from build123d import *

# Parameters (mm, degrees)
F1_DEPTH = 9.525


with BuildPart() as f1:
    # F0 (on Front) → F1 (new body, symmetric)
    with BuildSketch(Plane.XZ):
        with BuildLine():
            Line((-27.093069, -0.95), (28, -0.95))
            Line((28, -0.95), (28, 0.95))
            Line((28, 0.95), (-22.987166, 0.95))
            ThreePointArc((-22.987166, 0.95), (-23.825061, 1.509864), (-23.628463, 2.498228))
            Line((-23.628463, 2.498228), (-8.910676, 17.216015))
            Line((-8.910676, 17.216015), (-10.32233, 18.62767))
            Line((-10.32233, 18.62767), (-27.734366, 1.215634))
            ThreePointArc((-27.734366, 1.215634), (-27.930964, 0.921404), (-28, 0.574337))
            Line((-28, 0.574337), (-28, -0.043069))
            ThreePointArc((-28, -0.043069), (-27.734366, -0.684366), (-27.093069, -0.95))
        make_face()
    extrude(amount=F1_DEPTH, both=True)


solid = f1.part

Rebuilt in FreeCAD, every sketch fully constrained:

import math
import FreeCAD as App
import Part
import Sketcher

V = App.Vector
Q = App.Units.Quantity

doc = App.newDocument("Part")
params = doc.addObject("Spreadsheet::Sheet", "Params")
for row, (alias, value) in enumerate([
    ("sketch1_height", "1.9 mm"),
    ("pad1_length", "19.05 mm"),
], start=1):
    params.set(f"A{row}", alias)
    params.set(f"B{row}", "=" + value)
    params.setAlias(f"B{row}", alias)

body = doc.addObject("PartDesign::Body", "Body")

# Sketch on XZ plane
sketch1 = body.newObject("Sketcher::SketchObject", "Sketch")
sketch1.AttachmentSupport = (doc.getObject("XZ_Plane"), [""])
sketch1.MapMode = "FlatFace"
sketch1.addGeometry([
    Part.LineSegment(V(-27.093069, -0.95, 0), V(28, -0.95, 0)),  # 0
    Part.LineSegment(V(28, -0.95, 0), V(28, 0.95, 0)),  # 1
    Part.LineSegment(V(28, 0.95, 0), V(-22.987166, 0.95, 0)),  # 2
    Part.ArcOfCircle(Part.Circle(V(-22.987166, 1.856931, 0), V(0, 0, 1), 0.906931), math.radians(135.000011), math.radians(269.999987)),  # 3
    Part.LineSegment(V(-23.628463, 2.498228, 0), V(-8.910676, 17.216015, 0)),  # 4
    Part.LineSegment(V(-8.910676, 17.216015, 0), V(-10.32233, 18.62767, 0)),  # 5
    Part.LineSegment(V(-10.32233, 18.62767, 0), V(-27.734366, 1.215634, 0)),  # 6
    Part.ArcOfCircle(Part.Circle(V(-27.093068, 0.574336, 0), V(0, 0, 1), 0.906932), math.radians(135.000033), math.radians(179.999954)),  # 7
    Part.LineSegment(V(-28, 0.574337, 0), V(-28, -0.043069, 0)),  # 8
    Part.ArcOfCircle(Part.Circle(V(-27.093069, -0.043069, 0), V(0, 0, 1), 0.906931), math.radians(-179.999987), math.radians(-90.000013)),  # 9
], False)
sketch1.addConstraint([
    Sketcher.Constraint("Coincident", 0, 2, 1, 1),
    Sketcher.Constraint("Coincident", 1, 2, 2, 1),
    Sketcher.Constraint("Tangent", 2, 2, 3, 2),
    Sketcher.Constraint("Tangent", 3, 1, 4, 1),
    Sketcher.Constraint("Coincident", 4, 2, 5, 1),
    Sketcher.Constraint("Coincident", 5, 2, 6, 1),
    Sketcher.Constraint("Tangent", 6, 2, 7, 1),
    Sketcher.Constraint("Tangent", 7, 2, 8, 1),
    Sketcher.Constraint("Tangent", 8, 2, 9, 1),
    Sketcher.Constraint("Tangent", 9, 2, 0, 1),
    Sketcher.Constraint("Horizontal", 0),
    Sketcher.Constraint("Vertical", 1),
    Sketcher.Constraint("Horizontal", 2),
    Sketcher.Constraint("Vertical", 8),
    Sketcher.Constraint("Equal", 3, 7),
    Sketcher.Constraint("Equal", 7, 9),
    Sketcher.Constraint("Perpendicular", 4, 5),
    Sketcher.Constraint("Perpendicular", 5, 6),
    Sketcher.Constraint("Angle", 4, Q("45 deg")),
    Sketcher.Constraint("DistanceY", 1, 1, 1, 2, 1.9),
    Sketcher.Constraint("DistanceX", -1, 1, 0, 2, 28.0),
    Sketcher.Constraint("DistanceX", 7, 2, -1, 1, 28.0),
    Sketcher.Constraint("DistanceY", 0, 2, -1, 1, 0.95),
    Sketcher.Constraint("Radius", 3, 0.906931),
    Sketcher.Constraint("DistanceX", 7, 3, 3, 3, 4.105902),
    Sketcher.Constraint("Distance", 5, 1.996381),
    Sketcher.Constraint("DistanceX", 5, 2, -1, 1, 10.32233),
])
sketch1.setExpression("Constraints[19]", "Params.sketch1_height")
pad1 = body.newObject("PartDesign::Pad", "Pad")
pad1.Profile = sketch1
pad1.setExpression("Length", "Params.pad1_length")
pad1.Midplane = True

doc.recompute()
